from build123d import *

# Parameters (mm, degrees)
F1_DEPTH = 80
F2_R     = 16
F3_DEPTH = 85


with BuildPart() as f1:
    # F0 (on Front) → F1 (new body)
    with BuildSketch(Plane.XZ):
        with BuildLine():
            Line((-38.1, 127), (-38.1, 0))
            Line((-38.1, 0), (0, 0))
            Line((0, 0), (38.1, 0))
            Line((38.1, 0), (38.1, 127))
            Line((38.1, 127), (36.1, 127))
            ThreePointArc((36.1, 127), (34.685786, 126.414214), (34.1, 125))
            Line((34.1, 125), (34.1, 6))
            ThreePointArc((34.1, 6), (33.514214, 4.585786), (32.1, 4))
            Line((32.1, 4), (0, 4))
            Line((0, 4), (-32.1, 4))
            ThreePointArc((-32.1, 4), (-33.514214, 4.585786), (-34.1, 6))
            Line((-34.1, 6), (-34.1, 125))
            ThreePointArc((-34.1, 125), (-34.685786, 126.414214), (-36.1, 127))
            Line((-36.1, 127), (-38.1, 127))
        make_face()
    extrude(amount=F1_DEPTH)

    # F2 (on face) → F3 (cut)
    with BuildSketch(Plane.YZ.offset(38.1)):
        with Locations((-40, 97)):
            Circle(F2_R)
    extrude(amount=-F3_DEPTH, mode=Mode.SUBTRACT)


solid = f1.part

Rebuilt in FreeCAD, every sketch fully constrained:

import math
import FreeCAD as App
import Part
import Sketcher
Q = App.Units.Quantity

doc = App.newDocument("Part")
params = doc.addObject("Spreadsheet::Sheet", "Params")
for row, (alias, value) in enumerate([
    ("sketch1_radius", "1.999999 mm"),
    ("sketch1_width", "2 mm"),
    ("sketch1_height", "127 mm"),
    ("sketch1_height2", "119 mm"),
    ("sketch1_width2", "76.2 mm"),
    ("pad1_length", "80 mm"),
    ("sketch2_diameter", "32 mm"),
    ("pocket1_length", "85 mm"),
], start=1):
    params.set(f"A{row}", alias)
    params.set(f"B{row}", "=" + value)
    params.setAlias(f"B{row}", alias)

body = doc.addObject("PartDesign::Body", "Body")

# Sketch on XZ plane
sketch1 = doc.addObject("Sketcher::SketchObject", "Sketch")
body.addObject(sketch1)
sketch1.AttachmentSupport = (doc.XZ_Plane, [""])
sketch1.MapMode = "FlatFace"
sketch1.addGeometry(Part.LineSegment(App.Vector(-38.1, 127, 0), App.Vector(-38.1, 0, 0)), False)
sketch1.addGeometry(Part.LineSegment(App.Vector(-38.1, 0, 0), App.Vector(38.1, 0, 0)), False)
sketch1.addGeometry(Part.LineSegment(App.Vector(38.1, 0, 0), App.Vector(38.1, 127, 0)), False)
sketch1.addGeometry(Part.LineSegment(App.Vector(38.1, 127, 0), App.Vector(36.1, 127, 0)), False)
sketch1.addGeometry(Part.ArcOfCircle(Part.Circle(App.Vector(36.1, 125, 0), App.Vector(0, 0, 1), 2), math.radians(90), math.radians(180)), False)
sketch1.addGeometry(Part.LineSegment(App.Vector(34.1, 125, 0), App.Vector(34.1, 6, 0)), False)
sketch1.addGeometry(Part.ArcOfCircle(Part.Circle(App.Vector(32.1, 6, 0), App.Vector(0, 0, 1), 2), math.radians(-90), math.radians(0)), False)
sketch1.addGeometry(Part.LineSegment(App.Vector(32.1, 4, 0), App.Vector(-32.1, 4, 0)), False)
sketch1.addGeometry(Part.ArcOfCircle(Part.Circle(App.Vector(-32.1, 6, 0), App.Vector(0, 0, 1), 2), math.radians(180), math.radians(270)), False)
sketch1.addGeometry(Part.LineSegment(App.Vector(-34.1, 6, 0), App.Vector(-34.1, 125, 0)), False)
sketch1.addGeometry(Part.ArcOfCircle(Part.Circle(App.Vector(-36.1, 125, 0), App.Vector(0, 0, 1), 2), math.radians(0), math.radians(90)), False)
sketch1.addGeometry(Part.LineSegment(App.Vector(-36.1, 127, 0), App.Vector(-38.1, 127, 0)), False)
sketch1.addConstraint(Sketcher.Constraint("Coincident", 0, 2, 1, 1))
sketch1.addConstraint(Sketcher.Constraint("Coincident", 1, 2, 2, 1))
sketch1.addConstraint(Sketcher.Constraint("Coincident", 2, 2, 3, 1))
sketch1.addConstraint(Sketcher.Constraint("Tangent", 3, 2, 4, 1))
sketch1.addConstraint(Sketcher.Constraint("Tangent", 4, 2, 5, 1))
sketch1.addConstraint(Sketcher.Constraint("Tangent", 5, 2, 6, 2))
sketch1.addConstraint(Sketcher.Constraint("Tangent", 6, 1, 7, 1))
sketch1.addConstraint(Sketcher.Constraint("Tangent", 7, 2, 8, 2))
sketch1.addConstraint(Sketcher.Constraint("Tangent", 8, 1, 9, 1))
sketch1.addConstraint(Sketcher.Constraint("Tangent", 9, 2, 10, 1))
sketch1.addConstraint(Sketcher.Constraint("Tangent", 10, 2, 11, 1))
sketch1.addConstraint(Sketcher.Constraint("Coincident", 11, 2, 0, 1))
sketch1.addConstraint(Sketcher.Constraint("Vertical", 0))
sketch1.addConstraint(Sketcher.Constraint("Horizontal", 1))
sketch1.addConstraint(Sketcher.Constraint("Vertical", 2))
sketch1.addConstraint(Sketcher.Constraint("Horizontal", 3))
sketch1.addConstraint(Sketcher.Constraint("Vertical", 5))
sketch1.addConstraint(Sketcher.Constraint("Horizontal", 7))
sketch1.addConstraint(Sketcher.Constraint("Vertical", 9))
sketch1.addConstraint(Sketcher.Constraint("Horizontal", 11))
sketch1.addConstraint(Sketcher.Constraint("Equal", 4, 6))
sketch1.addConstraint(Sketcher.Constraint("Equal", 6, 8))
sketch1.addConstraint(Sketcher.Constraint("Equal", 8, 10))
sketch1.addConstraint(Sketcher.Constraint("Symmetric", 0, 2, 1, 2, -1, 1))
sketch1.addConstraint(Sketcher.Constraint("Symmetric", 4, 3, 10, 3, -2))
sketch1.addConstraint(Sketcher.Constraint("Radius", 4, Q("1.999999 mm")))
sketch1.addConstraint(Sketcher.Constraint("DistanceX", 3, 2, 3, 1, Q("2 mm")))
sketch1.addConstraint(Sketcher.Constraint("DistanceY", 0, 2, 0, 1, Q("127 mm")))
sketch1.addConstraint(Sketcher.Constraint("DistanceY", 5, 2, 5, 1, Q("119 mm")))
sketch1.addConstraint(Sketcher.Constraint("DistanceX", 1, 1, 1, 2, Q("76.2 mm")))
sketch1.setExpression("Constraints[25]", "Params.sketch1_radius")
sketch1.setExpression("Constraints[26]", "Params.sketch1_width")
sketch1.setExpression("Constraints[27]", "Params.sketch1_height")
sketch1.setExpression("Constraints[28]", "Params.sketch1_height2")
sketch1.setExpression("Constraints[29]", "Params.sketch1_width2")
pad1 = doc.addObject("PartDesign::Pad", "Pad")
body.addObject(pad1)
pad1.Profile = sketch1
pad1.setExpression("Length", "Params.pad1_length")

# Sketch on YZ plane
sketch2 = doc.addObject("Sketcher::SketchObject", "Sketch001")
body.addObject(sketch2)
sketch2.AttachmentSupport = (doc.YZ_Plane, [""])
sketch2.MapMode = "FlatFace"
sketch2.AttachmentOffset = App.Placement(App.Vector(0, 0, 38.1), App.Rotation())
sketch2.addGeometry(Part.Circle(App.Vector(-40, 97, 0), App.Vector(0, 0, 1), 16), False)
sketch2.addConstraint(Sketcher.Constraint("Diameter", 0, Q("32 mm")))
sketch2.addConstraint(Sketcher.Constraint("DistanceX", 0, 3, -1, 1, Q("40 mm")))
sketch2.addConstraint(Sketcher.Constraint("DistanceY", -1, 1, 0, 3, Q("97 mm")))
sketch2.setExpression("Constraints[0]", "Params.sketch2_diameter")
pocket1 = doc.addObject("PartDesign::Pocket", "Pocket")
body.addObject(pocket1)
pocket1.Profile = sketch2
pocket1.setExpression("Length", "Params.pocket1_length")

doc.recompute()
